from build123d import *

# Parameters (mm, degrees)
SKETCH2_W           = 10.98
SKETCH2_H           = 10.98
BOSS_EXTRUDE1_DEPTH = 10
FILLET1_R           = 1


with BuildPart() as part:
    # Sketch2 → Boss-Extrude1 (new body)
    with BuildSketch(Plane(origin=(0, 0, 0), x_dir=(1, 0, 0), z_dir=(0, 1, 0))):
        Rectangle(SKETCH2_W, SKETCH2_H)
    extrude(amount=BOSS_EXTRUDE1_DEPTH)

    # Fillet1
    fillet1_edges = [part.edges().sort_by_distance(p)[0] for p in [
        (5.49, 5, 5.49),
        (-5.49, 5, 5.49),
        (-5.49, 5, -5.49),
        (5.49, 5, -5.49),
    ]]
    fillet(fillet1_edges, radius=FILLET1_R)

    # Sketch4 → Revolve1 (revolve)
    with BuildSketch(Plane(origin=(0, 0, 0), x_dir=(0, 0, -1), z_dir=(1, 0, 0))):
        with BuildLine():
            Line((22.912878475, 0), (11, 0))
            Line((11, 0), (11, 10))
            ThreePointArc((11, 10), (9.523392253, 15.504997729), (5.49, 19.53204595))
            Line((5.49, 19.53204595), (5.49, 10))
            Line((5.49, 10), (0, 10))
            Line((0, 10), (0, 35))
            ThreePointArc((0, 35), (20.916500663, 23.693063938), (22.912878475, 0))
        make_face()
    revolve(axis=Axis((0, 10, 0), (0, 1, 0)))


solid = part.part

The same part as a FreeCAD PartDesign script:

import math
import FreeCAD as App
import Part
import Sketcher

V = App.Vector
Q = App.Units.Quantity


def edges_at(feature, points):
    """Names of the edges that pass closest to the given points."""
    edges = feature.Shape.Edges
    near = lambda p: min(range(len(edges)), key=lambda i: edges[i].distToShape(Part.Vertex(*p))[0])
    return sorted({f"Edge{near(p) + 1}" for p in points})


def add_polygon(sketch, points):
    """Adds a closed chain of lines whose ends are joined by coincident constraints."""
    first, n = sketch.GeometryCount, len(points)
    for a, b in zip(points, points[1:] + points[:1]):
        sketch.addGeometry(Part.LineSegment(App.Vector(*a, 0), App.Vector(*b, 0)), False)
    for i in range(n):
        sketch.addConstraint(Sketcher.Constraint("Coincident", first + i, 2, first + (i + 1) % n, 1))

doc = App.newDocument("Part")
params = doc.addObject("Spreadsheet::Sheet", "Params")
for row, (alias, value) in enumerate([
    ("sketch1_width", "10.98 mm"),
    ("pad1_length", "10 mm"),
    ("fillet_radius", "1 mm"),
    ("sketch2_radius", "25 mm"),
    ("sketch2_radius2", "11 mm"),
    ("sketch2_width", "10 mm"),
    ("sketch2_height", "5.49 mm"),
    ("revolution_angle", "360 deg"),
], start=1):
    params.set(f"A{row}", alias)
    params.set(f"B{row}", "=" + value)
    params.setAlias(f"B{row}", alias)

body = doc.addObject("PartDesign::Body", "Body")

sketch1 = body.newObject("Sketcher::SketchObject", "Sketch")
sketch1.AttachmentSupport = (doc.getObject("XZ_Plane"), [""])
sketch1.MapMode = "FlatFace"
add_polygon(sketch1, [(-5, -5), (-5, 5), (5, 5), (5, -5)])
sketch1.addConstraint([
    Sketcher.Constraint("Vertical", 0),
    Sketcher.Constraint("Horizontal", 1),
    Sketcher.Constraint("Vertical", 2),
    Sketcher.Constraint("Horizontal", 3),
    Sketcher.Constraint("Symmetric", 0, 2, 2, 2, -1, 1),
    Sketcher.Constraint("Equal", 3, 0),
    Sketcher.Constraint("DistanceX", 1, 1, 1, 2, Q("10.98 mm")),
])
sketch1.setExpression("Constraints[10]", "Params.sketch1_width")
pad1 = body.newObject("PartDesign::Pad", "Pad")
pad1.Profile = sketch1
pad1.setExpression("Length", "Params.pad1_length")
pad1.Reversed = True
doc.recompute()

fillet = body.newObject("PartDesign::Fillet", "Fillet")
fillet.Base = (pad1, edges_at(pad1, [
    (5.49, 5, 5.49),
    (-5.49, 5, 5.49),
    (-5.49, 5, -5.49),
    (5.49, 5, -5.49),
]))
fillet.setExpression("Radius", "Params.fillet_radius")

sketch2 = body.newObject("Sketcher::SketchObject", "Sketch001")
sketch2.AttachmentSupport = (doc.getObject("YZ_Plane"), [""])
sketch2.MapMode = "FlatFace"
sketch2.addGeometry([
    Part.LineSegment(V(0, -11, 0), V(0, -23, 0)),
    Part.ArcOfCircle(Part.Circle(V(10, 0, 0), V(0, 0, 1), 25), math.radians(-114), math.radians(0)),
    Part.LineSegment(V(35, 0, 0), V(10, 0, 0)),
    Part.LineSegment(V(10, 0, 0), V(10, -5, 0)),
    Part.LineSegment(V(10, -5, 0), V(20, -5, 0)),
    Part.ArcOfCircle(Part.Circle(V(10, 0, 0), V(0, 0, 1), 11), math.radians(-90), math.radians(-30)),
    Part.LineSegment(V(10, -11, 0), V(0, -11, 0)),
], False)
sketch2.addConstraint([
    Sketcher.Constraint("Coincident", 0, 2, 1, 1),
    Sketcher.Constraint("Coincident", 1, 2, 2, 1),
    Sketcher.Constraint("Coincident", 2, 2, 3, 1),
    Sketcher.Constraint("Coincident", 3, 2, 4, 1),
    Sketcher.Constraint("Coincident", 4, 2, 5, 2),
    Sketcher.Constraint("Tangent", 5, 1, 6, 1),
    Sketcher.Constraint("Coincident", 6, 2, 0, 1),
    Sketcher.Constraint("Vertical", 0),
    Sketcher.Constraint("Horizontal", 2),
    Sketcher.Constraint("Vertical", 3),
    Sketcher.Constraint("Horizontal", 4),
    Sketcher.Constraint("Horizontal", 6),
    Sketcher.Constraint("Coincident", 5, 3, 1, 3),
    Sketcher.Constraint("Coincident", 2, 2, 1, 3),
    Sketcher.Constraint("PointOnObject", 1, 3, -1),
    Sketcher.Constraint("PointOnObject", 0, 2, -2),
    Sketcher.Constraint("Radius", 1, Q("25 mm")),
    Sketcher.Constraint("Radius", 5, Q("11 mm")),
    Sketcher.Constraint("DistanceX", 6, 2, 6, 1, Q("10 mm")),
    Sketcher.Constraint("DistanceY", 3, 2, 3, 1, Q("5.49 mm")),
])
sketch2.setExpression("Constraints[16]", "Params.sketch2_radius")
sketch2.setExpression("Constraints[17]", "Params.sketch2_radius2")
sketch2.setExpression("Constraints[18]", "Params.sketch2_width")
sketch2.setExpression("Constraints[19]", "Params.sketch2_height")
revolution = body.newObject("PartDesign::Revolution", "Revolution")
revolution.Profile = sketch2
revolution.ReferenceAxis = (sketch2, ["H_Axis"])
revolution.setExpression("Angle", "Params.revolution_angle")

doc.recompute()
